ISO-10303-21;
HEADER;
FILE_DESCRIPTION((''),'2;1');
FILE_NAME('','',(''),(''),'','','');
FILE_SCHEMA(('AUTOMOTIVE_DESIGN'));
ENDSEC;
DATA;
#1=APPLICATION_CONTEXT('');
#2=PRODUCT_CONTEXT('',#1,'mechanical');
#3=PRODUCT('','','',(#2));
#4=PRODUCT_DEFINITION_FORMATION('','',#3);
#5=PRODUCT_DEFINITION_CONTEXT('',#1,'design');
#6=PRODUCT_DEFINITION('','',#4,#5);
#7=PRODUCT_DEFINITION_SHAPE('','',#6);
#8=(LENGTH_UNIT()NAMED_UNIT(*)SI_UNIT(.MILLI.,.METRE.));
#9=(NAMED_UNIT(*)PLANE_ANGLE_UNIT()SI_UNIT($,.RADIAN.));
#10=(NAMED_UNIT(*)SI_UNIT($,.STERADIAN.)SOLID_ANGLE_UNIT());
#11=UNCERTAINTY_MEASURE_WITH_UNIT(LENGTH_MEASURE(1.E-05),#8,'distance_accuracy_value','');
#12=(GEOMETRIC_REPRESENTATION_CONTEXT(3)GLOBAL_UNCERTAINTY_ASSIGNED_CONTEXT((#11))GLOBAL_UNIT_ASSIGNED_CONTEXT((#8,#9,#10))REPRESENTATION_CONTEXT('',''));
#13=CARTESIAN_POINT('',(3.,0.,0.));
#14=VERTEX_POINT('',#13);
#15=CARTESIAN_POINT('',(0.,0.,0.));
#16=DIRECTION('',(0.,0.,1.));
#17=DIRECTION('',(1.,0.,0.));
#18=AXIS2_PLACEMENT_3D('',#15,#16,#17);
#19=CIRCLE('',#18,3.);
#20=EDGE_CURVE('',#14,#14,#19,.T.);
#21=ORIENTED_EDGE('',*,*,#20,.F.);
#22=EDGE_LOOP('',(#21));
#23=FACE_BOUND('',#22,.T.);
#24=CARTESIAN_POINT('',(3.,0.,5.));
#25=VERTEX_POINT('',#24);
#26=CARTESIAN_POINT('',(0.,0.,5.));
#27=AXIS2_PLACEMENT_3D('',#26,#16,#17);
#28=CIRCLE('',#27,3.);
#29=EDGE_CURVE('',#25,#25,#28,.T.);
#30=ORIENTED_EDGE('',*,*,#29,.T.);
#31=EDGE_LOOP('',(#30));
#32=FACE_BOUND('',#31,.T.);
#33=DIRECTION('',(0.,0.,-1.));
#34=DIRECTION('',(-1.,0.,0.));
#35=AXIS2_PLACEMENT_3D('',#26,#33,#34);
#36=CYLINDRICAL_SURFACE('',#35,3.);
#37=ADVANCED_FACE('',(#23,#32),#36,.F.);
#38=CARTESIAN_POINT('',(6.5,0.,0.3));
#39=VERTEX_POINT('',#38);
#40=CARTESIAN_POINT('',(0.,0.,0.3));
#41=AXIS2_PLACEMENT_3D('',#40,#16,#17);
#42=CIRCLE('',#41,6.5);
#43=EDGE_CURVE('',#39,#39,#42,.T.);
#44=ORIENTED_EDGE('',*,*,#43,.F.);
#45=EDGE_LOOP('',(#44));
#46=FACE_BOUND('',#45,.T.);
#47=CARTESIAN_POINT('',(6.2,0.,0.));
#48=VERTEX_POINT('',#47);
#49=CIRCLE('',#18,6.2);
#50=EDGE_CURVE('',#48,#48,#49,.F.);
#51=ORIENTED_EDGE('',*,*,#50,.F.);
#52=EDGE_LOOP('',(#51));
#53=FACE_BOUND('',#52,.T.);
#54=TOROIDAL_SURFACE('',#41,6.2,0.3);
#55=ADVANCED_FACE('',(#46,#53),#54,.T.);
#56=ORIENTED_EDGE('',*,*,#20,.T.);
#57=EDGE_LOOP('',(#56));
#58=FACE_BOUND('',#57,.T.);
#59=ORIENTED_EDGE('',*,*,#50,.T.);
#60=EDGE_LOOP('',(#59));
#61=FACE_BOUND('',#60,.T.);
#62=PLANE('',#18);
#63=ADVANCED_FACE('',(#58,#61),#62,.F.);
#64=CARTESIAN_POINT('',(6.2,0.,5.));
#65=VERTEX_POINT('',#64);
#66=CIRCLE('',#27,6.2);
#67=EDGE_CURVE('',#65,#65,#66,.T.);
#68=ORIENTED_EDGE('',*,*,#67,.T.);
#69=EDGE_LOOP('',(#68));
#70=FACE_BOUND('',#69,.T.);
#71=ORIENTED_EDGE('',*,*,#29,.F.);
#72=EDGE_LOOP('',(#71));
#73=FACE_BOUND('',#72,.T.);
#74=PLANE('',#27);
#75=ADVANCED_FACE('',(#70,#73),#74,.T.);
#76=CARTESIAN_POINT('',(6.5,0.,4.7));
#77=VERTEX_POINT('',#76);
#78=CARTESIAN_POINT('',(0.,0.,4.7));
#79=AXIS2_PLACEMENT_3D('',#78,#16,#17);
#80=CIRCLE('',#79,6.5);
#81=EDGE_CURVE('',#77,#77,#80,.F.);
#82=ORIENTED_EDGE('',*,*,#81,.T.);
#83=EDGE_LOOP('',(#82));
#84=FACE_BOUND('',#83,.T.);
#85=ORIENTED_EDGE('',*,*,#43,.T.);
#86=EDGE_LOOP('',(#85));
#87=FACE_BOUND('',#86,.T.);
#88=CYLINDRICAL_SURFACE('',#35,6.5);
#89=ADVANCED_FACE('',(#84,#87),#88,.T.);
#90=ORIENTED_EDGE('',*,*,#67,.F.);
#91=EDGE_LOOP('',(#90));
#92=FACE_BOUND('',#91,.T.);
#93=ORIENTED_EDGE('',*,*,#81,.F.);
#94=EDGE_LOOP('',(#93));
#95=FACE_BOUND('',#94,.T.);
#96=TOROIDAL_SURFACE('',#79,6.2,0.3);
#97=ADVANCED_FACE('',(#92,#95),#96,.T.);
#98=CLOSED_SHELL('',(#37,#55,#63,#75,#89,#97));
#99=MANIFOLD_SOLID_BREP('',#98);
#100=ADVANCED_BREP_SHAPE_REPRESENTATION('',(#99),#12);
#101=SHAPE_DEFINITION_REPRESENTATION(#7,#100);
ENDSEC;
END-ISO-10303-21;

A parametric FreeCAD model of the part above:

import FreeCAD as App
import Part
import Sketcher

V = App.Vector


def edges_at(feature, points):
    """Names of the edges that pass closest to the given points."""
    edges = feature.Shape.Edges
    near = lambda p: min(range(len(edges)), key=lambda i: edges[i].distToShape(Part.Vertex(*p))[0])
    return sorted({f"Edge{near(p) + 1}" for p in points})

doc = App.newDocument("Part")
body = doc.addObject("PartDesign::Body", "Body")

sketch1 = body.newObject("Sketcher::SketchObject", "Sketch")
sketch1.AttachmentSupport = (doc.getObject("XY_Plane"), [""])
sketch1.MapMode = "FlatFace"
sketch1.addGeometry(Part.Circle(V(0, 0, 0), V(0, 0, 1), 6.5), False)
sketch1.addGeometry(Part.Circle(V(0, 0, 0), V(0, 0, 1), 3), False)
sketch1.addConstraint(Sketcher.Constraint("Coincident", 0, 3, -1, 1))
sketch1.addConstraint(Sketcher.Constraint("Coincident", 1, 3, -1, 1))
sketch1.addConstraint(Sketcher.Constraint("Diameter", 0, 13.0))
sketch1.addConstraint(Sketcher.Constraint("Diameter", 1, 6.0))
pad1 = body.newObject("PartDesign::Pad", "Pad")
pad1.Profile = sketch1
pad1.Length = 5
doc.recompute()

fillet = body.newObject("PartDesign::Fillet", "Fillet")
fillet.Base = (pad1, edges_at(pad1, [(-6.5, 0, 0), (-6.5, 0, 5)]))
fillet.Radius = 0.3

doc.recompute()
